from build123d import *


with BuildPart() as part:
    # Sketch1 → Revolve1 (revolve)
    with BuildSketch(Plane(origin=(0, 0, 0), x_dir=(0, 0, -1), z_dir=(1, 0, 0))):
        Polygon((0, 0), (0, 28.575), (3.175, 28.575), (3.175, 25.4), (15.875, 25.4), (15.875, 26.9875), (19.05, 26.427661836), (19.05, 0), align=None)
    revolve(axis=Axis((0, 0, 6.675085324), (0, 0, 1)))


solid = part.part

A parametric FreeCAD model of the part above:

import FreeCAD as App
import Part
import Sketcher

V = App.Vector
Q = App.Units.Quantity

doc = App.newDocument("Part")
body = doc.addObject("PartDesign::Body", "Body")

# Sketch on YZ plane
sketch1 = doc.addObject("Sketcher::SketchObject", "Sketch")
body.addObject(sketch1)
sketch1.AttachmentSupport = (doc.YZ_Plane, [""])
sketch1.MapMode = "FlatFace"
sketch1.addGeometry(Part.LineSegment(V(28.575, 0, 0), V(0, 0, 0)), False)
sketch1.addGeometry(Part.LineSegment(V(0, 0, 0), V(0, -19.05, 0)), False)
sketch1.addGeometry(Part.LineSegment(V(0, -19.05, 0), V(26.427662, -19.05, 0)), False)
sketch1.addGeometry(Part.LineSegment(V(26.427662, -19.05, 0), V(26.9875, -15.875, 0)), False)
sketch1.addGeometry(Part.LineSegment(V(26.9875, -15.875, 0), V(25.4, -15.875, 0)), False)
sketch1.addGeometry(Part.LineSegment(V(25.4, -15.875, 0), V(25.4, -3.175, 0)), False)
sketch1.addGeometry(Part.LineSegment(V(25.4, -3.175, 0), V(28.575, -3.175, 0)), False)
sketch1.addGeometry(Part.LineSegment(V(28.575, -3.175, 0), V(28.575, 0, 0)), False)
sketch1.addConstraint(Sketcher.Constraint("Coincident", 0, 2, 1, 1))
sketch1.addConstraint(Sketcher.Constraint("Coincident", 1, 2, 2, 1))
sketch1.addConstraint(Sketcher.Constraint("Coincident", 2, 2, 3, 1))
sketch1.addConstraint(Sketcher.Constraint("Coincident", 3, 2, 4, 1))
sketch1.addConstraint(Sketcher.Constraint("Coincident", 4, 2, 5, 1))
sketch1.addConstraint(Sketcher.Constraint("Coincident", 5, 2, 6, 1))
sketch1.addConstraint(Sketcher.Constraint("Coincident", 6, 2, 7, 1))
sketch1.addConstraint(Sketcher.Constraint("Coincident", 7, 2, 0, 1))
sketch1.addConstraint(Sketcher.Constraint("Horizontal", 0))
sketch1.addConstraint(Sketcher.Constraint("Vertical", 1))
sketch1.addConstraint(Sketcher.Constraint("Horizontal", 2))
sketch1.addConstraint(Sketcher.Constraint("Horizontal", 4))
sketch1.addConstraint(Sketcher.Constraint("Vertical", 5))
sketch1.addConstraint(Sketcher.Constraint("Horizontal", 6))
sketch1.addConstraint(Sketcher.Constraint("Vertical", 7))
sketch1.addConstraint(Sketcher.Constraint("Coincident", 0, 2, -1, 1))
sketch1.addConstraint(Sketcher.Constraint("Equal", 6, 7))
sketch1.addConstraint(Sketcher.Constraint("DistanceY", 5, 1, 5, 2, Q("0.5 in")))
sketch1.addConstraint(Sketcher.Constraint("DistanceX", -1, 1, 4, 2, Q("1 in")))
sketch1.addConstraint(Sketcher.Constraint("Angle", 3, Q("80 deg")))
sketch1.addConstraint(Sketcher.Constraint("DistanceY", 1, 2, 1, 1, Q("0.75 in")))
sketch1.addConstraint(Sketcher.Constraint("DistanceX", 0, 2, 0, 1, Q("1.125 in")))
sketch1.addConstraint(Sketcher.Constraint("DistanceX", 4, 2, 4, 1, Q("0.0625 in")))
revolution = doc.addObject("PartDesign::Revolution", "Revolution")
body.addObject(revolution)
revolution.Profile = sketch1
revolution.ReferenceAxis = (sketch1, ["V_Axis"])
revolution.Angle = 360

doc.recompute()
